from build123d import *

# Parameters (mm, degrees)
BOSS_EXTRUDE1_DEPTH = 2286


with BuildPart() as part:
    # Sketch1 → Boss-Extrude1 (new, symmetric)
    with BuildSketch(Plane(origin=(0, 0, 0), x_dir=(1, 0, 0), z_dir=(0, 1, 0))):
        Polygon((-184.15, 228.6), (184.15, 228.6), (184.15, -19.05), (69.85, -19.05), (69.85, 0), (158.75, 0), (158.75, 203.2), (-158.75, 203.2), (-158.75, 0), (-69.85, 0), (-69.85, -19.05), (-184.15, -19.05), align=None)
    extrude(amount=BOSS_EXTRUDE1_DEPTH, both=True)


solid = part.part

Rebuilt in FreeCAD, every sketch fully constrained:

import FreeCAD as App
import Part
import Sketcher
from FreeCAD import Vector
Q = App.Units.Quantity


def add_polygon(sketch, points):
    """Adds a closed chain of lines whose ends are joined by coincident constraints."""
    first, n = sketch.GeometryCount, len(points)
    for a, b in zip(points, points[1:] + points[:1]):
        sketch.addGeometry(Part.LineSegment(App.Vector(*a, 0), App.Vector(*b, 0)), False)
    for i in range(n):
        sketch.addConstraint(Sketcher.Constraint("Coincident", first + i, 2, first + (i + 1) % n, 1))

doc = App.newDocument("Part")
body = doc.addObject("PartDesign::Body", "Body")

# Sketch on XZ plane
sketch1 = body.newObject("Sketcher::SketchObject", "Sketch")
sketch1.AttachmentSupport = (doc.getObject("XZ_Plane"), [""])
sketch1.MapMode = "FlatFace"
add_polygon(sketch1, [(184, -229), (-184, -229), (-184, 19), (-70, 19), (-70, 0), (-159, 0), (-159, -203), (159, -203), (159, 0), (70, 0), (70, 19), (184, 19)])  # lines 0-11
sketch1.addConstraint(Sketcher.Constraint("Horizontal", 0))
sketch1.addConstraint(Sketcher.Constraint("Vertical", 1))
sketch1.addConstraint(Sketcher.Constraint("Horizontal", 2))
sketch1.addConstraint(Sketcher.Constraint("Vertical", 3))
sketch1.addConstraint(Sketcher.Constraint("Horizontal", 4))
sketch1.addConstraint(Sketcher.Constraint("Vertical", 5))
sketch1.addConstraint(Sketcher.Constraint("Horizontal", 6))
sketch1.addConstraint(Sketcher.Constraint("Vertical", 7))
sketch1.addConstraint(Sketcher.Constraint("Horizontal", 8))
sketch1.addConstraint(Sketcher.Constraint("Vertical", 9))
sketch1.addConstraint(Sketcher.Constraint("Horizontal", 10))
sketch1.addConstraint(Sketcher.Constraint("Vertical", 11))
sketch1.addConstraint(Sketcher.Constraint("Symmetric", 4, 2, 7, 2, -1, 1))
sketch1.addConstraint(Sketcher.Constraint("Symmetric", 3, 2, 8, 2, -2))
sketch1.addConstraint(Sketcher.Constraint("Symmetric", 1, 2, 10, 2, -2))
sketch1.addConstraint(Sketcher.Constraint("DistanceY", 5, 2, 5, 1, Q("8 in")))
sketch1.addConstraint(Sketcher.Constraint("DistanceX", 0, 2, 0, 1, Q("14.5 in")))
sketch1.addConstraint(Sketcher.Constraint("DistanceX", 2, 1, 2, 2, Q("4.5 in")))
sketch1.addConstraint(Sketcher.Constraint("DistanceX", 4, 2, 4, 1, Q("3.5 in")))
sketch1.addConstraint(Sketcher.Constraint("DistanceY", 0, 2, -1, 1, Q("9 in")))
sketch1.addConstraint(Sketcher.Constraint("DistanceY", 1, 1, 1, 2, Q("9.75 in")))
pad1 = body.newObject("PartDesign::Pad", "Pad")
pad1.Profile = sketch1
pad1.Length = Q("180 in")
pad1.Midplane = True

doc.recompute()
